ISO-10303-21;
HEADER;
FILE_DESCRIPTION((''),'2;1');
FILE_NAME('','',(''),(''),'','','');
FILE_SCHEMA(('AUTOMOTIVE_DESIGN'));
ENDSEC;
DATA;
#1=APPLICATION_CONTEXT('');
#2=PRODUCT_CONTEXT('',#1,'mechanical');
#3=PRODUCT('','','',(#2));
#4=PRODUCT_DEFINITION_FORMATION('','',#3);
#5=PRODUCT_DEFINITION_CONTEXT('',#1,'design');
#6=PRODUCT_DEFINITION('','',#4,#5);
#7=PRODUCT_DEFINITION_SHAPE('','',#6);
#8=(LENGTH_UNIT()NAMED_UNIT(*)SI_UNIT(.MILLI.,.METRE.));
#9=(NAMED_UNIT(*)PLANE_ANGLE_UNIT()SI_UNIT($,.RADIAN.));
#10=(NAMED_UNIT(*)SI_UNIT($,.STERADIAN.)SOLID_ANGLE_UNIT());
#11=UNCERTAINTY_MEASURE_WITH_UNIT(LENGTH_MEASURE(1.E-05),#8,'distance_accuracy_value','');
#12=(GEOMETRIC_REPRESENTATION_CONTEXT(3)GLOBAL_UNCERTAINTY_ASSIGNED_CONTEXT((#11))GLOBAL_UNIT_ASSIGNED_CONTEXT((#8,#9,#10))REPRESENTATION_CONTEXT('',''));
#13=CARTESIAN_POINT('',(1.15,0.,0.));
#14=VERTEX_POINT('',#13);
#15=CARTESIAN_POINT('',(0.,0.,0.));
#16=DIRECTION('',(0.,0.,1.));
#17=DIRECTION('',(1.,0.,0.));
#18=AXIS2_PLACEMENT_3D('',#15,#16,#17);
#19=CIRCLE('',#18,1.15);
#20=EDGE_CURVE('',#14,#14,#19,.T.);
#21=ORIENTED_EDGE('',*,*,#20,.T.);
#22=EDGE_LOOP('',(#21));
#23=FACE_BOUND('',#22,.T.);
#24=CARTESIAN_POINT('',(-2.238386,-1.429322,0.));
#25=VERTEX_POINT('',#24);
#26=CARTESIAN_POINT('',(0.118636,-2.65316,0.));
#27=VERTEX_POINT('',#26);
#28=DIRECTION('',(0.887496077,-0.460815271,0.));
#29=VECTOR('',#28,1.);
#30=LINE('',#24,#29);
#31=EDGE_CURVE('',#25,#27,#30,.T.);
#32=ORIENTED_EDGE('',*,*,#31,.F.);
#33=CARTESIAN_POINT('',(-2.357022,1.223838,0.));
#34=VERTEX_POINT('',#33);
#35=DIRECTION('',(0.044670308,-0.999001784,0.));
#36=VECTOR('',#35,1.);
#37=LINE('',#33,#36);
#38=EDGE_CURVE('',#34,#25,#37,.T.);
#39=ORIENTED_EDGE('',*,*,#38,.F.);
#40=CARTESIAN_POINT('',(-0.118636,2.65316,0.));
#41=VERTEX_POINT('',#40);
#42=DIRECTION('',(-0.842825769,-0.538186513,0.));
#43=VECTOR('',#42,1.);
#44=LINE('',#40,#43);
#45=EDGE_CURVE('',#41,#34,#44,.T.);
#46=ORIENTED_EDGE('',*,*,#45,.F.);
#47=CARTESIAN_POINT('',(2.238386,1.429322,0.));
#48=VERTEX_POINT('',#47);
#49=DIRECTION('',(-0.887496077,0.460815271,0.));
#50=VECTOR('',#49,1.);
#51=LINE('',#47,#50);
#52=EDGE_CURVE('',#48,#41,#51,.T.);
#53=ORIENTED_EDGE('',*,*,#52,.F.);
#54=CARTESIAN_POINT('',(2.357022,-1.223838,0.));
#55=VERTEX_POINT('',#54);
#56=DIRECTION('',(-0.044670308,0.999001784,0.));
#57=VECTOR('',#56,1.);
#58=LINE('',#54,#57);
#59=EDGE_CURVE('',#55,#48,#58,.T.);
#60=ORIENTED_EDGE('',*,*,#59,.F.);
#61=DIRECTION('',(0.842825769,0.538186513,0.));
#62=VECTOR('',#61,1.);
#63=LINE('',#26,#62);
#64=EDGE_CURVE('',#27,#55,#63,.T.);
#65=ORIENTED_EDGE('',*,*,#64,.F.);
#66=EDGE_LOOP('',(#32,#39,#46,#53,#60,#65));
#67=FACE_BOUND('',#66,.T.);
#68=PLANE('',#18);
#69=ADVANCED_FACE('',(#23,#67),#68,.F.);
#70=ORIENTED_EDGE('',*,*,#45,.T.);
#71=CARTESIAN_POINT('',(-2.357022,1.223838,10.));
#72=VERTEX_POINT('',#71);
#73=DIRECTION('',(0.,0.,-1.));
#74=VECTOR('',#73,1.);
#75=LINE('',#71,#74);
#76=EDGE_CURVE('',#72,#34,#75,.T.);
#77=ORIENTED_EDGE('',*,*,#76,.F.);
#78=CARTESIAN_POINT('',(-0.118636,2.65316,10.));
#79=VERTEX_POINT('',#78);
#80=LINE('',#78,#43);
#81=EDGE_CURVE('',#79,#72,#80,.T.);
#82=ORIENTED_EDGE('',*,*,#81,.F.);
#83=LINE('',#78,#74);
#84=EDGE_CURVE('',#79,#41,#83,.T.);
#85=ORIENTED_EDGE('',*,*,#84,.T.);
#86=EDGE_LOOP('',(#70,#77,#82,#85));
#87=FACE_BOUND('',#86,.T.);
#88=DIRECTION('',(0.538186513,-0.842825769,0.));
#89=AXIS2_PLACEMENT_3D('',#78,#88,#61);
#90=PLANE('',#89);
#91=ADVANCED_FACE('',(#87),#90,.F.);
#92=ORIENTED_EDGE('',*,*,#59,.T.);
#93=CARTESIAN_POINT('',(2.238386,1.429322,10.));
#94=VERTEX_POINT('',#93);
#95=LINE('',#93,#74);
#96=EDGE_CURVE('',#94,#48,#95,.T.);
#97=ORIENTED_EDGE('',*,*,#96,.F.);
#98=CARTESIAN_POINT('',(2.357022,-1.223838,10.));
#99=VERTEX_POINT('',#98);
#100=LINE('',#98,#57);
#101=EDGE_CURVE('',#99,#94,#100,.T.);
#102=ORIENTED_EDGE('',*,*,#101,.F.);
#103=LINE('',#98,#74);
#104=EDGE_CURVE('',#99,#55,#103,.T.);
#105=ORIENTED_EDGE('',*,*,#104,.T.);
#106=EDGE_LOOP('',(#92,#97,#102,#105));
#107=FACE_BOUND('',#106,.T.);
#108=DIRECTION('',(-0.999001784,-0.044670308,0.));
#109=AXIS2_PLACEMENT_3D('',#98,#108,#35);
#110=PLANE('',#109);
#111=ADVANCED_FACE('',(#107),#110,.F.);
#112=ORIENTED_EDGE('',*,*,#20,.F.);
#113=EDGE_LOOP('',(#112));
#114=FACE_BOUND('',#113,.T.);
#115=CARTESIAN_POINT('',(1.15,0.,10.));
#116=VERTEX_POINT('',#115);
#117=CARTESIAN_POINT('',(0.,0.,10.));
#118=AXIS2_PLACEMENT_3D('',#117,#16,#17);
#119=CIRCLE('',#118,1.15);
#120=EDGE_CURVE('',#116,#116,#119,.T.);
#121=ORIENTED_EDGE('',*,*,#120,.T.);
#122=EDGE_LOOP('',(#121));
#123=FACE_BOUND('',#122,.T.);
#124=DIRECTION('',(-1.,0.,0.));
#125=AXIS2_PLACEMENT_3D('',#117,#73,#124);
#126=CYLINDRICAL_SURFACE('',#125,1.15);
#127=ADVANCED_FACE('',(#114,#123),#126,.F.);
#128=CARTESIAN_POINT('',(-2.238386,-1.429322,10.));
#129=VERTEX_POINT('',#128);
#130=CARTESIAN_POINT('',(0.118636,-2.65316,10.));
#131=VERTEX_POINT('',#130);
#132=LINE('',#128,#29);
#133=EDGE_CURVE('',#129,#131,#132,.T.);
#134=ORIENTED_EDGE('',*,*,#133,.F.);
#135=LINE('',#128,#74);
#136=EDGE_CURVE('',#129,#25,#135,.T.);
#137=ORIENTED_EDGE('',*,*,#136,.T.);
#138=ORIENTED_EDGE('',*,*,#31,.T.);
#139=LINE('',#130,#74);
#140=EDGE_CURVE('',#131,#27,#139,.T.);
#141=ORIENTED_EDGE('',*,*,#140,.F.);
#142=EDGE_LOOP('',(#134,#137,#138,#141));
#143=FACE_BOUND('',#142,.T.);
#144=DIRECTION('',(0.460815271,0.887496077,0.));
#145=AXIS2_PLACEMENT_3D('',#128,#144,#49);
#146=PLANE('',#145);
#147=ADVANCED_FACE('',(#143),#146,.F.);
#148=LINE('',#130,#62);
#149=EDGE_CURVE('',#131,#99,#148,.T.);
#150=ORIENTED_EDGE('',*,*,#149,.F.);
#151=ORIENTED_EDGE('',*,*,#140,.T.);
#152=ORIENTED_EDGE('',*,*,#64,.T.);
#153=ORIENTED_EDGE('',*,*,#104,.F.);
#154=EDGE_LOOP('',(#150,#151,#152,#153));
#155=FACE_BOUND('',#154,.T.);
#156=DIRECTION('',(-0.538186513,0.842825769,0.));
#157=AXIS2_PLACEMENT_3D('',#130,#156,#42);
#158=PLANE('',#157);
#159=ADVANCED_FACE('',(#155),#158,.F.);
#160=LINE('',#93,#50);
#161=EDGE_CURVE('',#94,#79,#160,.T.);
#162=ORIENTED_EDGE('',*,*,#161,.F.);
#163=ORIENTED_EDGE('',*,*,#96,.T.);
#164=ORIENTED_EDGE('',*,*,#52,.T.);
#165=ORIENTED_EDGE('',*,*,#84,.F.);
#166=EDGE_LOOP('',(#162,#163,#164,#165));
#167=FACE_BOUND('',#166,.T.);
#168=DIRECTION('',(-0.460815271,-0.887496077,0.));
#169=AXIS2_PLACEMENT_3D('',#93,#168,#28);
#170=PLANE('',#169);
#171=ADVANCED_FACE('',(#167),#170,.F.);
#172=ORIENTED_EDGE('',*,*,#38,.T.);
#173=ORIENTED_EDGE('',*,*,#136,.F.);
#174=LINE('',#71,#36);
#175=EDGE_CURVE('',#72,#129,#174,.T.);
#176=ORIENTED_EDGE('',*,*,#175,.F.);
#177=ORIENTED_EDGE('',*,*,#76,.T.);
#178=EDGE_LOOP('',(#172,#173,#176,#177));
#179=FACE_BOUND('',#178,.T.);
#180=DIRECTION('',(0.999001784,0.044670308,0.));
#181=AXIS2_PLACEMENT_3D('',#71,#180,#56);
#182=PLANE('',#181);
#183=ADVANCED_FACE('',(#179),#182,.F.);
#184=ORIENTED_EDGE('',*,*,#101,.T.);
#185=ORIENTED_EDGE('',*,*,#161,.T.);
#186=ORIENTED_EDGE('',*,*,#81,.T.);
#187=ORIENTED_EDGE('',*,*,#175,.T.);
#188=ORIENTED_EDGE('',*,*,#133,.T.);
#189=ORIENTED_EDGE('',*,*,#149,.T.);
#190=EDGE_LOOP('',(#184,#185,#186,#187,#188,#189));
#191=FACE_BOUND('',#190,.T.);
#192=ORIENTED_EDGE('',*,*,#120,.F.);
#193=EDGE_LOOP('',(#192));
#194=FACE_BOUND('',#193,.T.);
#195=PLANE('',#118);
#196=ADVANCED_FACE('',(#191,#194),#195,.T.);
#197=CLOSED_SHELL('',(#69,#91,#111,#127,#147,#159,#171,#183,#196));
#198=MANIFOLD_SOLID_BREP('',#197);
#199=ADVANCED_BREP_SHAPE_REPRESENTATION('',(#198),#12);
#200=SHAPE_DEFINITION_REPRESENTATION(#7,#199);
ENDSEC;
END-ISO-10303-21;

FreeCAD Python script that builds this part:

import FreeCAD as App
import Part
import Sketcher

doc = App.newDocument("Part")
params = doc.addObject("Spreadsheet::Sheet", "Params")
for row, (alias, value) in enumerate([
    ("sketch1_diameter", "2.3 mm"),
    ("pad1_length", "10 mm"),
], start=1):
    params.set(f"A{row}", alias)
    params.set(f"B{row}", "=" + value)
    params.setAlias(f"B{row}", alias)

body = doc.addObject("PartDesign::Body", "Body")

# Sketch on XY plane
sketch1 = body.newObject("Sketcher::SketchObject", "Sketch")
sketch1.AttachmentSupport = (doc.getObject("XY_Plane"), [""])
sketch1.MapMode = "FlatFace"
sketch1.addGeometry([
    Part.LineSegment(App.Vector(2.357022, -1.223838, 0), App.Vector(2.238386, 1.429322, 0)),  # 0
    Part.LineSegment(App.Vector(2.238386, 1.429322, 0), App.Vector(-0.118636, 2.65316, 0)),  # 1
    Part.LineSegment(App.Vector(-0.118636, 2.65316, 0), App.Vector(-2.357022, 1.223838, 0)),  # 2
    Part.LineSegment(App.Vector(-2.357022, 1.223838, 0), App.Vector(-2.238386, -1.429322, 0)),  # 3
    Part.LineSegment(App.Vector(-2.238386, -1.429322, 0), App.Vector(0.118636, -2.65316, 0)),  # 4
    Part.LineSegment(App.Vector(0.118636, -2.65316, 0), App.Vector(2.357022, -1.223838, 0)),  # 5
    Part.Circle(App.Vector(0, 0, 0), App.Vector(0, 0, 1), 1.15),  # 6
], False)
sketch1.addConstraint([
    Sketcher.Constraint("Coincident", 0, 2, 1, 1),
    Sketcher.Constraint("Coincident", 1, 2, 2, 1),
    Sketcher.Constraint("Coincident", 2, 2, 3, 1),
    Sketcher.Constraint("Coincident", 3, 2, 4, 1),
    Sketcher.Constraint("Coincident", 4, 2, 5, 1),
    Sketcher.Constraint("Coincident", 5, 2, 0, 1),
    Sketcher.Constraint("Coincident", 6, 3, -1, 1),
    Sketcher.Constraint("Symmetric", 0, 2, 3, 2, -1, 1),
    Sketcher.Constraint("Symmetric", 1, 2, 4, 2, -1, 1),
    Sketcher.Constraint("Symmetric", 2, 2, 5, 2, -1, 1),
    Sketcher.Constraint("Equal", 0, 1),
    Sketcher.Constraint("Equal", 1, 2),
    Sketcher.Constraint("Diameter", 6, 2.3),
    Sketcher.Constraint("DistanceY", 4, 2, 2, 2, 3.876999),
    Sketcher.Constraint("Distance", 0, 2.655811),
    Sketcher.Constraint("DistanceY", -1, 1, 0, 2, 1.429322),
    Sketcher.Constraint("DistanceY", -1, 1, 1, 2, 2.65316),
])
sketch1.setExpression("Constraints[12]", "Params.sketch1_diameter")
pad1 = body.newObject("PartDesign::Pad", "Pad")
pad1.Profile = sketch1
pad1.setExpression("Length", "Params.pad1_length")

doc.recompute()
